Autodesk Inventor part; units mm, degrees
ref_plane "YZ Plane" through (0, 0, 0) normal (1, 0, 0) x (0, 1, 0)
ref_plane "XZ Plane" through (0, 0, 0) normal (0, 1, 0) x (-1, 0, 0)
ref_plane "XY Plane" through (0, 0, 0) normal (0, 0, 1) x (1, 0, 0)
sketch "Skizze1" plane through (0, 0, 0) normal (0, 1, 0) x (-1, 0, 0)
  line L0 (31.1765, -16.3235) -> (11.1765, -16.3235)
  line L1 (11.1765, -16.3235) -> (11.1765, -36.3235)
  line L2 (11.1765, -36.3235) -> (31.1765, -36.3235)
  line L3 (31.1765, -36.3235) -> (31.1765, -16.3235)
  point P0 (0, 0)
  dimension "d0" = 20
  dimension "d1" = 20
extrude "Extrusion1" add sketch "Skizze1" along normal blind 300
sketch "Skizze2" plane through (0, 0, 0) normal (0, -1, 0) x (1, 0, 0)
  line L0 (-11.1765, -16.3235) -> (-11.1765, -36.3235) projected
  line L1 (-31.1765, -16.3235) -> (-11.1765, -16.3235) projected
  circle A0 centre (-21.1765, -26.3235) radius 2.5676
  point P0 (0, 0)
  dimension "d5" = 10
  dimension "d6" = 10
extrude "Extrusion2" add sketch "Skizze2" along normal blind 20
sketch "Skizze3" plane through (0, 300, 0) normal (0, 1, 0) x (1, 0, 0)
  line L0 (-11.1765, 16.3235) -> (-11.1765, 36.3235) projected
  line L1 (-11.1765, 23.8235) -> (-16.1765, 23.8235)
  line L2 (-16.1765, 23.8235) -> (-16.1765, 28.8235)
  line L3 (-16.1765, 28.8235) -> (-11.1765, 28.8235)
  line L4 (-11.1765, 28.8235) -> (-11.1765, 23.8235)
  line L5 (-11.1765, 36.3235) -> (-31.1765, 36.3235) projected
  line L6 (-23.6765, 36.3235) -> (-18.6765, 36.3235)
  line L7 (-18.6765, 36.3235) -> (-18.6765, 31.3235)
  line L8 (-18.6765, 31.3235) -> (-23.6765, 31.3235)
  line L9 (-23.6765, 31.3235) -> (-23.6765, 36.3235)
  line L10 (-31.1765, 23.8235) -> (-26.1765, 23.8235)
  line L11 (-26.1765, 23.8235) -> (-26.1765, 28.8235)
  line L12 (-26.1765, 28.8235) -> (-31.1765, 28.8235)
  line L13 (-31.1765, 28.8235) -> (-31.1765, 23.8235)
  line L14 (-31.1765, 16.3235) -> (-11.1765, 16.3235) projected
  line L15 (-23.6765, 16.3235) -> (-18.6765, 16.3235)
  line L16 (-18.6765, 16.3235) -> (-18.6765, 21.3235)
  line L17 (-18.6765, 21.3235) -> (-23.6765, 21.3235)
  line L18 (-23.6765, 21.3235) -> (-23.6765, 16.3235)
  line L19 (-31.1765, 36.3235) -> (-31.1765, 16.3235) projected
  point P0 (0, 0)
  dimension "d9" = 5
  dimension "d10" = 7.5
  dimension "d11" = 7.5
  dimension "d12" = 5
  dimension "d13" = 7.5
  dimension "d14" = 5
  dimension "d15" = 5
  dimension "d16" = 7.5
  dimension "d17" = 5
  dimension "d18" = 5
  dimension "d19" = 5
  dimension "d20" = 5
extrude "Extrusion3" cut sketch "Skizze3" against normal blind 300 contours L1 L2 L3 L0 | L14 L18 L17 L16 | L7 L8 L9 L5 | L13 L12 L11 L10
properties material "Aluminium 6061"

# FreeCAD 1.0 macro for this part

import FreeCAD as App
import Part
import Sketcher

doc = App.newDocument("Part")
params = doc.addObject("Spreadsheet::Sheet", "Params")
for row, (alias, value) in enumerate([
    ("sketch1_width", "20 mm"),
    ("pad1_length", "300 mm"),
    ("pad2_length", "20 mm"),
    ("sketch3_width", "5 mm"),
    ("pocket1_length", "300 mm"),
], start=1):
    params.set(f"A{row}", alias)
    params.set(f"B{row}", "=" + value)
    params.setAlias(f"B{row}", alias)

body = doc.addObject("PartDesign::Body", "Body")

# Sketch on XZ plane
sketch1 = body.newObject("Sketcher::SketchObject", "Sketch")
sketch1.AttachmentSupport = (doc.getObject("XZ_Plane"), [""])
sketch1.MapMode = "FlatFace"
sketch1.addGeometry(Part.LineSegment(App.Vector(-31, -36, 0), App.Vector(-31, -16, 0)), False)
sketch1.addGeometry(Part.LineSegment(App.Vector(-31, -16, 0), App.Vector(-11, -16, 0)), False)
sketch1.addGeometry(Part.LineSegment(App.Vector(-11, -16, 0), App.Vector(-11, -36, 0)), False)
sketch1.addGeometry(Part.LineSegment(App.Vector(-11, -36, 0), App.Vector(-31, -36, 0)), False)
sketch1.addConstraint(Sketcher.Constraint("Coincident", 0, 2, 1, 1))
sketch1.addConstraint(Sketcher.Constraint("Coincident", 1, 2, 2, 1))
sketch1.addConstraint(Sketcher.Constraint("Coincident", 2, 2, 3, 1))
sketch1.addConstraint(Sketcher.Constraint("Coincident", 3, 2, 0, 1))
sketch1.addConstraint(Sketcher.Constraint("Vertical", 0))
sketch1.addConstraint(Sketcher.Constraint("Horizontal", 1))
sketch1.addConstraint(Sketcher.Constraint("Vertical", 2))
sketch1.addConstraint(Sketcher.Constraint("Horizontal", 3))
sketch1.addConstraint(Sketcher.Constraint("Equal", 3, 0))
sketch1.addConstraint(Sketcher.Constraint("DistanceX", 1, 1, 1, 2, 20.0))
sketch1.addConstraint(Sketcher.Constraint("DistanceX", 0, 2, -1, 1, 31.1765))
sketch1.addConstraint(Sketcher.Constraint("DistanceY", 0, 2, -1, 1, 16.3235))
sketch1.setExpression("Constraints[9]", "Params.sketch1_width")
pad1 = body.newObject("PartDesign::Pad", "Pad")
pad1.Profile = sketch1
pad1.setExpression("Length", "Params.pad1_length")
pad1.Reversed = True

# Sketch on XZ plane
sketch2 = body.newObject("Sketcher::SketchObject", "Sketch001")
sketch2.AttachmentSupport = (doc.getObject("XZ_Plane"), [""])
sketch2.MapMode = "FlatFace"
sketch2.addGeometry(Part.Circle(App.Vector(-21.2, -26.3, 0), App.Vector(0, 0, 1), 2.6), False)
sketch2.addConstraint(Sketcher.Constraint("Diameter", 0, 5.1352))
sketch2.addConstraint(Sketcher.Constraint("DistanceX", 0, 3, -1, 1, 21.1765))
sketch2.addConstraint(Sketcher.Constraint("DistanceY", 0, 3, -1, 1, 26.3235))
pad2 = body.newObject("PartDesign::Pad", "Pad001")
pad2.Profile = sketch2
pad2.setExpression("Length", "Params.pad2_length")

# Sketch on XZ plane
sketch3 = body.newObject("Sketcher::SketchObject", "Sketch002")
sketch3.AttachmentSupport = (doc.getObject("XZ_Plane"), [""])
sketch3.MapMode = "FlatFace"
sketch3.AttachmentOffset = App.Placement(App.Vector(0, 0, -300), App.Rotation())
sketch3.addGeometry(Part.LineSegment(App.Vector(-16, -24, 0), App.Vector(-11, -24, 0)), False)
sketch3.addGeometry(Part.LineSegment(App.Vector(-11, -24, 0), App.Vector(-11, -29, 0)), False)
sketch3.addGeometry(Part.LineSegment(App.Vector(-11, -29, 0), App.Vector(-16, -29, 0)), False)
sketch3.addGeometry(Part.LineSegment(App.Vector(-16, -29, 0), App.Vector(-16, -24, 0)), False)
sketch3.addGeometry(Part.LineSegment(App.Vector(-24, -16, 0), App.Vector(-19, -16, 0)), False)
sketch3.addGeometry(Part.LineSegment(App.Vector(-19, -16, 0), App.Vector(-19, -21, 0)), False)
sketch3.addGeometry(Part.LineSegment(App.Vector(-19, -21, 0), App.Vector(-24, -21, 0)), False)
sketch3.addGeometry(Part.LineSegment(App.Vector(-24, -21, 0), App.Vector(-24, -16, 0)), False)
sketch3.addGeometry(Part.LineSegment(App.Vector(-19, -31, 0), App.Vector(-19, -36, 0)), False)
sketch3.addGeometry(Part.LineSegment(App.Vector(-19, -36, 0), App.Vector(-24, -36, 0)), False)
sketch3.addGeometry(Part.LineSegment(App.Vector(-24, -36, 0), App.Vector(-24, -31, 0)), False)
sketch3.addGeometry(Part.LineSegment(App.Vector(-24, -31, 0), App.Vector(-19, -31, 0)), False)
sketch3.addGeometry(Part.LineSegment(App.Vector(-31, -29, 0), App.Vector(-31, -24, 0)), False)
sketch3.addGeometry(Part.LineSegment(App.Vector(-31, -24, 0), App.Vector(-26, -24, 0)), False)
sketch3.addGeometry(Part.LineSegment(App.Vector(-26, -24, 0), App.Vector(-26, -29, 0)), False)
sketch3.addGeometry(Part.LineSegment(App.Vector(-26, -29, 0), App.Vector(-31, -29, 0)), False)
sketch3.addConstraint(Sketcher.Constraint("Coincident", 0, 2, 1, 1))
sketch3.addConstraint(Sketcher.Constraint("Coincident", 1, 2, 2, 1))
sketch3.addConstraint(Sketcher.Constraint("Coincident", 2, 2, 3, 1))
sketch3.addConstraint(Sketcher.Constraint("Coincident", 3, 2, 0, 1))
sketch3.addConstraint(Sketcher.Constraint("Coincident", 4, 2, 5, 1))
sketch3.addConstraint(Sketcher.Constraint("Coincident", 5, 2, 6, 1))
sketch3.addConstraint(Sketcher.Constraint("Coincident", 6, 2, 7, 1))
sketch3.addConstraint(Sketcher.Constraint("Coincident", 7, 2, 4, 1))
sketch3.addConstraint(Sketcher.Constraint("Coincident", 8, 2, 9, 1))
sketch3.addConstraint(Sketcher.Constraint("Coincident", 9, 2, 10, 1))
sketch3.addConstraint(Sketcher.Constraint("Coincident", 10, 2, 11, 1))
sketch3.addConstraint(Sketcher.Constraint("Coincident", 11, 2, 8, 1))
sketch3.addConstraint(Sketcher.Constraint("Coincident", 12, 2, 13, 1))
sketch3.addConstraint(Sketcher.Constraint("Coincident", 13, 2, 14, 1))
sketch3.addConstraint(Sketcher.Constraint("Coincident", 14, 2, 15, 1))
sketch3.addConstraint(Sketcher.Constraint("Coincident", 15, 2, 12, 1))
sketch3.addConstraint(Sketcher.Constraint("Horizontal", 0))
sketch3.addConstraint(Sketcher.Constraint("Vertical", 1))
sketch3.addConstraint(Sketcher.Constraint("Horizontal", 2))
sketch3.addConstraint(Sketcher.Constraint("Vertical", 3))
sketch3.addConstraint(Sketcher.Constraint("Horizontal", 4))
sketch3.addConstraint(Sketcher.Constraint("Vertical", 5))
sketch3.addConstraint(Sketcher.Constraint("Horizontal", 6))
sketch3.addConstraint(Sketcher.Constraint("Vertical", 7))
sketch3.addConstraint(Sketcher.Constraint("Vertical", 8))
sketch3.addConstraint(Sketcher.Constraint("Horizontal", 9))
sketch3.addConstraint(Sketcher.Constraint("Vertical", 10))
sketch3.addConstraint(Sketcher.Constraint("Horizontal", 11))
sketch3.addConstraint(Sketcher.Constraint("Vertical", 12))
sketch3.addConstraint(Sketcher.Constraint("Horizontal", 13))
sketch3.addConstraint(Sketcher.Constraint("Vertical", 14))
sketch3.addConstraint(Sketcher.Constraint("Horizontal", 15))
sketch3.addConstraint(Sketcher.Constraint("Horizontal", 3, 2, 12, 2))
sketch3.addConstraint(Sketcher.Constraint("Horizontal", 2, 2, 14, 2))
sketch3.addConstraint(Sketcher.Constraint("Vertical", 5, 2, 8, 2))
sketch3.addConstraint(Sketcher.Constraint("Vertical", 7, 2, 9, 2))
sketch3.addConstraint(Sketcher.Constraint("Equal", 2, 4))
sketch3.addConstraint(Sketcher.Constraint("Equal", 11, 13))
sketch3.addConstraint(Sketcher.Constraint("Equal", 15, 1))
sketch3.addConstraint(Sketcher.Constraint("Equal", 3, 5))
sketch3.addConstraint(Sketcher.Constraint("Equal", 7, 8))
sketch3.addConstraint(Sketcher.Constraint("DistanceX", 0, 1, 0, 2, 5.0))
sketch3.addConstraint(Sketcher.Constraint("DistanceY", 3, 2, 4, 2, 7.5))
sketch3.addConstraint(Sketcher.Constraint("DistanceX", 4, 2, 0, 2, 7.5))
sketch3.addConstraint(Sketcher.Constraint("DistanceY", 8, 2, 2, 2, 7.5))
sketch3.addConstraint(Sketcher.Constraint("DistanceX", 12, 2, 6, 2, 7.5))
sketch3.addConstraint(Sketcher.Constraint("DistanceX", 0, 2, -1, 1, 11.1765))
sketch3.addConstraint(Sketcher.Constraint("DistanceY", 0, 2, -1, 1, 23.8235))
sketch3.setExpression("Constraints[41]", "Params.sketch3_width")
pocket1 = body.newObject("PartDesign::Pocket", "Pocket")
pocket1.Profile = sketch3
pocket1.setExpression("Length", "Params.pocket1_length")
pocket1.Reversed = True

doc.recompute()
